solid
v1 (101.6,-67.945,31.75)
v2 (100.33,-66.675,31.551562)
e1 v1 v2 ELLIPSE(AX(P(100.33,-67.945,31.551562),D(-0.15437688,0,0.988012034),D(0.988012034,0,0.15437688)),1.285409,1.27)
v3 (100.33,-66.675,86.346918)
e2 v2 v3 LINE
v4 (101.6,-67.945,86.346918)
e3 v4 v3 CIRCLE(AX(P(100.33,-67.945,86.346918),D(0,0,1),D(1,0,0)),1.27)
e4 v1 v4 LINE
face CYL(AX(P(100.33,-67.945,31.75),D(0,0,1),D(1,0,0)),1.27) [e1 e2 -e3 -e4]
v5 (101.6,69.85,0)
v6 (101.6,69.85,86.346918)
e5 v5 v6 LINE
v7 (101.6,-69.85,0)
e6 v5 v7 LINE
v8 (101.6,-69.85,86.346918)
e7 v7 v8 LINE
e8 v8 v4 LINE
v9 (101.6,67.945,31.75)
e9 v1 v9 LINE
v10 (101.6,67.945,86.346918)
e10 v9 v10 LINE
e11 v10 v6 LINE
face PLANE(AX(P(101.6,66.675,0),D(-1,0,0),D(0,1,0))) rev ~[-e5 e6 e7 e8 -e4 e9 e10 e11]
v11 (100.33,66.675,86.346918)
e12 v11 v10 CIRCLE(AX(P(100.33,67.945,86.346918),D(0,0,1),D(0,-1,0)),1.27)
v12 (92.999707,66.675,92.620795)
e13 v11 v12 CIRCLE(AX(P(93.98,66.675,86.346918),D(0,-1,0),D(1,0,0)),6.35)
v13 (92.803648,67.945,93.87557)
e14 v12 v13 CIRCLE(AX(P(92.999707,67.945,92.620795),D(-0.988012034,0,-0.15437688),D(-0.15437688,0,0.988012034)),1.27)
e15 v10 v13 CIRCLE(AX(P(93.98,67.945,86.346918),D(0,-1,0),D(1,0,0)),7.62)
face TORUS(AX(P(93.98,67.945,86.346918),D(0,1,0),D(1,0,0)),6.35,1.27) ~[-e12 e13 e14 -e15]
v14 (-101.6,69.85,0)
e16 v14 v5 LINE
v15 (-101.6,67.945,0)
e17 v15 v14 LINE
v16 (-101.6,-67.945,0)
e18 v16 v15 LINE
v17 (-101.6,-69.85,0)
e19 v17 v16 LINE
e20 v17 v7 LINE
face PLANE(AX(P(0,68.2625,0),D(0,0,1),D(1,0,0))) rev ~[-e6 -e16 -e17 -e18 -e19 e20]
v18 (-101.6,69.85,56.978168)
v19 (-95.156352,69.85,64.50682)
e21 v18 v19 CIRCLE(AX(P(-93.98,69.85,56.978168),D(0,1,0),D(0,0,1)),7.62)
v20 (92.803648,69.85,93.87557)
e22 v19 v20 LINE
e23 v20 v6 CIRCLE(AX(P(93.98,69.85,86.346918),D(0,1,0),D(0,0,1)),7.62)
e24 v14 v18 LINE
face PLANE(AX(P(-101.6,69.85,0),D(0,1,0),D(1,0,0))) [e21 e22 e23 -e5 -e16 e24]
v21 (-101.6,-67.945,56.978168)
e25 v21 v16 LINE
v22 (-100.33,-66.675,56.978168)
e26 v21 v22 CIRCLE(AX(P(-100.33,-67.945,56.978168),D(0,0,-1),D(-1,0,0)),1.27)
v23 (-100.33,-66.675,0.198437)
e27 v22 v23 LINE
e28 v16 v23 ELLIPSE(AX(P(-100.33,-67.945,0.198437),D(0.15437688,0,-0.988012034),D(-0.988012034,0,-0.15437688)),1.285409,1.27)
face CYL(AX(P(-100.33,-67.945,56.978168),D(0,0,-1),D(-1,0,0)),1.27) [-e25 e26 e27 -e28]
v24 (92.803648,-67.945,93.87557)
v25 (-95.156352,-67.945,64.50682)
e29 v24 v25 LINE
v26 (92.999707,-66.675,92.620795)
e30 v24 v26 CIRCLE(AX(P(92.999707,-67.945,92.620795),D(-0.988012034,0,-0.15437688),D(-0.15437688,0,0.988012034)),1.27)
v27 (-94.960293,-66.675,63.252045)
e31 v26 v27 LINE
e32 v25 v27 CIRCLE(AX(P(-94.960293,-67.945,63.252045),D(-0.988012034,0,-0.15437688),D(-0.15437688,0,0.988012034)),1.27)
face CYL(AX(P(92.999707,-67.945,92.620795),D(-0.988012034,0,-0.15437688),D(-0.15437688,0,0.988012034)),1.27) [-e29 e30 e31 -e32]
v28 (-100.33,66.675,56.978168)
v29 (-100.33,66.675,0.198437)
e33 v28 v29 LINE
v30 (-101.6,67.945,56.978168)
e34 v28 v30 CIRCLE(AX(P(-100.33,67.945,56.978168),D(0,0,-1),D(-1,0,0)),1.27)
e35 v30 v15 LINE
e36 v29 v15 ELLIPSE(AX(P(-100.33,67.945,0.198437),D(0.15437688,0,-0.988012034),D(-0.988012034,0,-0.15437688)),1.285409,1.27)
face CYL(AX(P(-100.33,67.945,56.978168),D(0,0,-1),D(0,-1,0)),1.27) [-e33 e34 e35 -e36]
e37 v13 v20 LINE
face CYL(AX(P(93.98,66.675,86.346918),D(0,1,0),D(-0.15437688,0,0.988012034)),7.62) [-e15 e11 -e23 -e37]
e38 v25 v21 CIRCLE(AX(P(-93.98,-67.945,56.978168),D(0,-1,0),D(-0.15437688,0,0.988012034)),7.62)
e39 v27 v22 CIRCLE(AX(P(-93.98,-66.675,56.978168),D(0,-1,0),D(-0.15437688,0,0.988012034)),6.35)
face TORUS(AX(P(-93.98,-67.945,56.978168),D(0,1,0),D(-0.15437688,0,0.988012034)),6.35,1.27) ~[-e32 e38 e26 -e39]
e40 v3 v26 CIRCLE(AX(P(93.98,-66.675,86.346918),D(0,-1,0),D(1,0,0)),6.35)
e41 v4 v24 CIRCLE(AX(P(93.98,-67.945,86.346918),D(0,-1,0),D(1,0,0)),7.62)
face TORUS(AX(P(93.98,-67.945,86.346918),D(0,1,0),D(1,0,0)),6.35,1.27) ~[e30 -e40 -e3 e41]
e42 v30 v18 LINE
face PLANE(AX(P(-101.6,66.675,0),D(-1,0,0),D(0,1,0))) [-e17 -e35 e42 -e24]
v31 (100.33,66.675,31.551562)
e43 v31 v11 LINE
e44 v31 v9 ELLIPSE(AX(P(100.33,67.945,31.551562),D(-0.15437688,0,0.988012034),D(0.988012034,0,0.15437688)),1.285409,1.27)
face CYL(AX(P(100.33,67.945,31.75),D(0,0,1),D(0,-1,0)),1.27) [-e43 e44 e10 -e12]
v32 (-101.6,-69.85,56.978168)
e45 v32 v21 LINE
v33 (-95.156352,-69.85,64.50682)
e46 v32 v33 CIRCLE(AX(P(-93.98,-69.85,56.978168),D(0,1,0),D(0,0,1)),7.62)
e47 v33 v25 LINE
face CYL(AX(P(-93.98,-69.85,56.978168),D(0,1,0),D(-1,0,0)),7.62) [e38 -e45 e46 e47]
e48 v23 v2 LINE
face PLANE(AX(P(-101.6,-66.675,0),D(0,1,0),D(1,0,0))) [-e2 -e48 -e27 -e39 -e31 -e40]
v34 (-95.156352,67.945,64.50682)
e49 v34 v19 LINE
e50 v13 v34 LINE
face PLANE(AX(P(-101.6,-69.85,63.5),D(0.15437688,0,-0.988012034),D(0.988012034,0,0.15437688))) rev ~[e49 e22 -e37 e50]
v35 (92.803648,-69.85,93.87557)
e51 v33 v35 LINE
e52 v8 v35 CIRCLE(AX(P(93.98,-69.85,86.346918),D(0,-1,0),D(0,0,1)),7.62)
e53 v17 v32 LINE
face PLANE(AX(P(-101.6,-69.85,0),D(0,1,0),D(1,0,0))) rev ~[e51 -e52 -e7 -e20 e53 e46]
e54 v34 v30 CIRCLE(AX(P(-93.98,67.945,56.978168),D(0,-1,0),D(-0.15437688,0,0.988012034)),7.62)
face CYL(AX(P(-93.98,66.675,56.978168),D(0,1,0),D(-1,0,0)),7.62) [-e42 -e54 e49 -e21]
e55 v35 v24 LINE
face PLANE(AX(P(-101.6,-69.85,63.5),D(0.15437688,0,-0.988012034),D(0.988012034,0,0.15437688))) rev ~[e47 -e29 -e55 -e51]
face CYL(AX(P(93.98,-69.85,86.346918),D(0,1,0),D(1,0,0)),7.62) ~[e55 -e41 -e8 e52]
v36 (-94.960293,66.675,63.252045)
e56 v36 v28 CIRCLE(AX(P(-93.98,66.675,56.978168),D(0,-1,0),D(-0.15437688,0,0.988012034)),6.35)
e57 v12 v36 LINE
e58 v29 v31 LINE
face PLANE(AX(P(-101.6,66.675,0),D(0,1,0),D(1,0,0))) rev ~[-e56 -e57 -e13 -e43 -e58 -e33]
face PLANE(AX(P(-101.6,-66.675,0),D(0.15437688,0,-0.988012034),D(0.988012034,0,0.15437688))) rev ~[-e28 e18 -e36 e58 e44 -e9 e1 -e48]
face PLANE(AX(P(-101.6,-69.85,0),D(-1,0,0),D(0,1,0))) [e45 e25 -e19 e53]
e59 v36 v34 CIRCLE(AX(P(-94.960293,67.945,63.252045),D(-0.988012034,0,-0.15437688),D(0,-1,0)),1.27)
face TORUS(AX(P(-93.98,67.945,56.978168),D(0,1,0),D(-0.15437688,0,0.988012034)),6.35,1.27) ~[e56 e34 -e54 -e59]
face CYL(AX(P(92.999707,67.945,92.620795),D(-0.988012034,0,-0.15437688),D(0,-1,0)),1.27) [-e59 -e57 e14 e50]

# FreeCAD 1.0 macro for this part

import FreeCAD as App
import Part
import Sketcher
Q = App.Units.Quantity


def edges_at(feature, points):
    """Names of the edges that pass closest to the given points."""
    edges = feature.Shape.Edges
    near = lambda p: min(range(len(edges)), key=lambda i: edges[i].distToShape(Part.Vertex(*p))[0])
    return sorted({f"Edge{near(p) + 1}" for p in points})


def add_polygon(sketch, points):
    """Adds a closed chain of lines whose ends are joined by coincident constraints."""
    first, n = sketch.GeometryCount, len(points)
    for a, b in zip(points, points[1:] + points[:1]):
        sketch.addGeometry(Part.LineSegment(App.Vector(*a, 0), App.Vector(*b, 0)), False)
    for i in range(n):
        sketch.addConstraint(Sketcher.Constraint("Coincident", first + i, 2, first + (i + 1) % n, 1))

doc = App.newDocument("Part")
body = doc.addObject("PartDesign::Body", "Body")

# Sketch on XY plane
sketch1 = body.newObject("Sketcher::SketchObject", "Sketch")
sketch1.AttachmentSupport = (doc.getObject("XY_Plane"), [""])
sketch1.MapMode = "FlatFace"
add_polygon(sketch1, [(-102, 67), (-102, -67), (102, -67), (102, 67)])  # lines 0-3
sketch1.addConstraint([
    Sketcher.Constraint("Vertical", 0),
    Sketcher.Constraint("Horizontal", 1),
    Sketcher.Constraint("Vertical", 2),
    Sketcher.Constraint("Horizontal", 3),
    Sketcher.Constraint("Symmetric", 0, 2, 2, 2, -1, 1),
    Sketcher.Constraint("DistanceX", 1, 1, 1, 2, Q("8 in")),
    Sketcher.Constraint("DistanceY", 0, 2, 0, 1, Q("5.25 in")),
])
pad1 = body.newObject("PartDesign::Pad", "Pad")
pad1.Profile = sketch1
pad1.Length = Q("1.25 in")

# Sketch on XZ plane
sketch2 = body.newObject("Sketcher::SketchObject", "Sketch001")
sketch2.AttachmentSupport = (doc.getObject("XZ_Plane"), [""])
sketch2.MapMode = "FlatFace"
sketch2.AttachmentOffset = App.Placement(App.Vector(0, 0, 2.625 * 25.4), App.Rotation())
add_polygon(sketch2, [(-102, 32), (-102, 0), (102, 32)])  # lines 0-2
sketch2.addConstraint([
    Sketcher.Constraint("Vertical", 0),
    Sketcher.Constraint("Horizontal", 2),
    Sketcher.Constraint("PointOnObject", 0, 2, -1),
    Sketcher.Constraint("DistanceX", 2, 2, 2, 1, Q("8 in")),
    Sketcher.Constraint("DistanceX", 0, 2, -1, 1, Q("4 in")),
    Sketcher.Constraint("DistanceY", 0, 2, 0, 1, Q("1.25 in")),
])
pocket1 = body.newObject("PartDesign::Pocket", "Pocket")
pocket1.Profile = sketch2
pocket1.Type = "ThroughAll"

# Sketch on XY plane
sketch3 = body.newObject("Sketcher::SketchObject", "Sketch002")
sketch3.AttachmentSupport = (doc.getObject("XY_Plane"), [""])
sketch3.MapMode = "FlatFace"
add_polygon(sketch3, [(-101.6, 69.8), (-101.6, 66.7), (101.6, 66.7), (101.6, 69.8)])  # lines 0-3
add_polygon(sketch3, [(-101.6, -66.7), (-101.6, -69.8), (101.6, -69.8), (101.6, -66.7)])  # lines 4-7
sketch3.addConstraint([
    Sketcher.Constraint("Vertical", 0),
    Sketcher.Constraint("Horizontal", 1),
    Sketcher.Constraint("Vertical", 2),
    Sketcher.Constraint("Horizontal", 3),
    Sketcher.Constraint("Vertical", 4),
    Sketcher.Constraint("Horizontal", 5),
    Sketcher.Constraint("Vertical", 6),
    Sketcher.Constraint("Horizontal", 7),
    Sketcher.Constraint("Symmetric", 2, 2, 4, 2, -1, 1),
    Sketcher.Constraint("Symmetric", 0, 2, 6, 2, -1, 1),
    Sketcher.Constraint("Vertical", 3, 2, 4, 2),
    Sketcher.Constraint("DistanceX", 1, 1, 1, 2, Q("8 in")),
    Sketcher.Constraint("DistanceY", 4, 2, 3, 2, Q("5.5 in")),
    Sketcher.Constraint("DistanceY", 0, 2, 0, 1, Q("0.125 in")),
])
pad2 = body.newObject("PartDesign::Pad", "Pad001")
pad2.Profile = sketch3
pad2.Length = Q("3.75 in")

# Sketch on XZ plane
sketch4 = body.newObject("Sketcher::SketchObject", "Sketch003")
sketch4.AttachmentSupport = (doc.getObject("XZ_Plane"), [""])
sketch4.MapMode = "FlatFace"
sketch4.AttachmentOffset = App.Placement(App.Vector(0, 0, 2.75 * 25.4), App.Rotation())
add_polygon(sketch4, [(-102, 64), (102, 95), (-102, 95)])  # lines 0-2
sketch4.addConstraint([
    Sketcher.Constraint("Horizontal", 1),
    Sketcher.Constraint("Vertical", 2),
    Sketcher.Constraint("DistanceX", 1, 2, 1, 1, Q("8 in")),
    Sketcher.Constraint("DistanceX", -1, 1, 0, 2, Q("4 in")),
    Sketcher.Constraint("DistanceY", 2, 2, 2, 1, Q("1.25 in")),
    Sketcher.Constraint("DistanceY", -1, 1, 2, 2, Q("2.5 in")),
])
pocket2 = body.newObject("PartDesign::Pocket", "Pocket001")
pocket2.Profile = sketch4
pocket2.Type = "ThroughAll"
doc.recompute()

fillet = body.newObject("PartDesign::Fillet", "Fillet")
fillet.Base = (pocket2, edges_at(pocket2, [
    (101.6, -68.263, 95.25),
    (101.6, 68.263, 95.25),
    (-101.6, -68.263, 63.5),
    (-101.6, 68.263, 63.5),
]))
fillet.Radius = Q("0.3 in")
doc.recompute()

fillet2 = body.newObject("PartDesign::Fillet", "Fillet001")
fillet2.Base = (fillet, edges_at(fillet, [(101.6, -66.675, 59.048), (101.6, 66.675, 59.048)]))
fillet2.Radius = Q("0.05 in")

doc.recompute()
